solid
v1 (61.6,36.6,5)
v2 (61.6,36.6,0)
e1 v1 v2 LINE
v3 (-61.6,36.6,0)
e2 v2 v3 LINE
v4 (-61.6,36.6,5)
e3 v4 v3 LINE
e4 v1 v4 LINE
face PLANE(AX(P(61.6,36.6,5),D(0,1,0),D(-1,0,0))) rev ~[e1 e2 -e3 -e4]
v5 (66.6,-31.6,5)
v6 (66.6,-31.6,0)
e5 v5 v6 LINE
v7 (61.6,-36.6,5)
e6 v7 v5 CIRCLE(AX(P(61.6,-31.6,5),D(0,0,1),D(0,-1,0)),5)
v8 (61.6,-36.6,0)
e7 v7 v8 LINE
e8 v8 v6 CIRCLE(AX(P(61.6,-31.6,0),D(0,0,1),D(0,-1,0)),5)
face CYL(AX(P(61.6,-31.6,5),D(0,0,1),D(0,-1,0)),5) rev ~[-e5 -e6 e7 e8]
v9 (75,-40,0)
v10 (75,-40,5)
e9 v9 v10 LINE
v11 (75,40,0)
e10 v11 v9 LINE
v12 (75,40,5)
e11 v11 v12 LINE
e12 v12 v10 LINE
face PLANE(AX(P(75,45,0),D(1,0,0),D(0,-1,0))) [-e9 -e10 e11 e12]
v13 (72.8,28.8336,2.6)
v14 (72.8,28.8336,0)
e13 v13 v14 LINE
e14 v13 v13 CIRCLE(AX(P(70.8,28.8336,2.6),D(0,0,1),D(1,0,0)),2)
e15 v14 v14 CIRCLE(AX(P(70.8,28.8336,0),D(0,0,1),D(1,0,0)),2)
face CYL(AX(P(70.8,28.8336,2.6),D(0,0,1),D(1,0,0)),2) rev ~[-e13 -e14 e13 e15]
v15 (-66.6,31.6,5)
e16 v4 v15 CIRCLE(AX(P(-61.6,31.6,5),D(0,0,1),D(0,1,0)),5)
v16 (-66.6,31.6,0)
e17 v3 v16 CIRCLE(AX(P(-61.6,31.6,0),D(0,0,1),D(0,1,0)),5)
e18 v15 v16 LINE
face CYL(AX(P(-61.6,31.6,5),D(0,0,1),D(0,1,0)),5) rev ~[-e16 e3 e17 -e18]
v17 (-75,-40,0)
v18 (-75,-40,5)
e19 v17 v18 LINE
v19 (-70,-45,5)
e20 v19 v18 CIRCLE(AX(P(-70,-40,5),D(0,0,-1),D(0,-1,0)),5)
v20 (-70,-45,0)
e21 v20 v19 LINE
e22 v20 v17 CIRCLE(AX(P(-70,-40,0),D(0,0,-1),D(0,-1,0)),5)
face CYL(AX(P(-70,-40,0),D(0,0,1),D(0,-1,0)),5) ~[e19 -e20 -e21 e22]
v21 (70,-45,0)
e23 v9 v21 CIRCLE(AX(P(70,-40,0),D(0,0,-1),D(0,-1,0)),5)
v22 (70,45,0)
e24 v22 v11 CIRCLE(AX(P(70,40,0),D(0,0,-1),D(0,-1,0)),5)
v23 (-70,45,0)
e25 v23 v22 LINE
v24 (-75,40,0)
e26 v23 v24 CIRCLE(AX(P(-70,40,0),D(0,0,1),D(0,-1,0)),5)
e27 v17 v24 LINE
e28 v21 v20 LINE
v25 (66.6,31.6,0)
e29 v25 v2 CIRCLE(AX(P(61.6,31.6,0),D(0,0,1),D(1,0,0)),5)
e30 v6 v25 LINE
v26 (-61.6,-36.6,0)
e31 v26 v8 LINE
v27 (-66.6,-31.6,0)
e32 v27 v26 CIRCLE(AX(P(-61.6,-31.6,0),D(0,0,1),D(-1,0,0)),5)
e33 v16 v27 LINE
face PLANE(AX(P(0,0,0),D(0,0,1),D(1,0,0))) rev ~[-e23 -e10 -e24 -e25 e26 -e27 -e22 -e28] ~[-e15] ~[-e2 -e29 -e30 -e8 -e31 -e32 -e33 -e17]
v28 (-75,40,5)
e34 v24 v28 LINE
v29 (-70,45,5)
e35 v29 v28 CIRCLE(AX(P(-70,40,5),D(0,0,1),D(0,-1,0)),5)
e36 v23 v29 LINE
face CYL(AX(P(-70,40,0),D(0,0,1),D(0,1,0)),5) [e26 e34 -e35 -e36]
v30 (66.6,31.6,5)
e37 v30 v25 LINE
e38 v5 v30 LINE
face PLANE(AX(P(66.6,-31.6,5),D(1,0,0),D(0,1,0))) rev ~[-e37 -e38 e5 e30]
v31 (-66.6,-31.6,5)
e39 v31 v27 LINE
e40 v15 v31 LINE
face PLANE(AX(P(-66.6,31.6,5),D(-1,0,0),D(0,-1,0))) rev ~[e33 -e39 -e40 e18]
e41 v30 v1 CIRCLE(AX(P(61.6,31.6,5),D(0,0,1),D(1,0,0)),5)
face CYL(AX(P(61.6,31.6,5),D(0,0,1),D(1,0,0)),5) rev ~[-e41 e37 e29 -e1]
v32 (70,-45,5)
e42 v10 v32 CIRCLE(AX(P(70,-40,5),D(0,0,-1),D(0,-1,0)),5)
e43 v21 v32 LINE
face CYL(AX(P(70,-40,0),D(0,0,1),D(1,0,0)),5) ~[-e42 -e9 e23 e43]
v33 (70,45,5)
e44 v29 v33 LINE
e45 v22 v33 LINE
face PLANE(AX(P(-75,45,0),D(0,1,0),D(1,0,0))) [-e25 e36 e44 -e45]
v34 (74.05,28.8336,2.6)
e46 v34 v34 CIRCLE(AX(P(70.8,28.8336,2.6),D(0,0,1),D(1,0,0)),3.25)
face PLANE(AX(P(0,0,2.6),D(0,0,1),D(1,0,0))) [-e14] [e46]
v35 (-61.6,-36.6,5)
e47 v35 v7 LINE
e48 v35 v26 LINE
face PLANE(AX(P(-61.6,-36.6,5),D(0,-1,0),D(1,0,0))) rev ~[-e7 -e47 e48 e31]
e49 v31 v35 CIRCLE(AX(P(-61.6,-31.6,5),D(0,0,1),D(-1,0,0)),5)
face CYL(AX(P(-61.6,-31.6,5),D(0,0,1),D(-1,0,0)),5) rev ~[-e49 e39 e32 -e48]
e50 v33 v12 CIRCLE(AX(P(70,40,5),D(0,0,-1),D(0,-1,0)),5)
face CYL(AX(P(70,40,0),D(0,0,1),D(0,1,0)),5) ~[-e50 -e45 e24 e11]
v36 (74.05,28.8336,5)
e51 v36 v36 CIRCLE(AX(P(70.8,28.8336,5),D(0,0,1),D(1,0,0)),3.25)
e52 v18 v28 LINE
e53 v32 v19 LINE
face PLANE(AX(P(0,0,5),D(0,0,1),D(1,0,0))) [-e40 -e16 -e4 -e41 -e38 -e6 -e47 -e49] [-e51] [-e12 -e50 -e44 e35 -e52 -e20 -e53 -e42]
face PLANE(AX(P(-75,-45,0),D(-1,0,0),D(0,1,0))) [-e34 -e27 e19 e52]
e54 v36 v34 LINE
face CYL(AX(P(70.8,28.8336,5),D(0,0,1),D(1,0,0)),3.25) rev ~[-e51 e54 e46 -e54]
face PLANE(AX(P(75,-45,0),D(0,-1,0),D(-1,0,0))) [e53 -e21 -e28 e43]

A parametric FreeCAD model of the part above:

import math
import FreeCAD as App
import Part
import Sketcher
from FreeCAD import Vector


def edges_at(feature, points):
    """Names of the edges that pass closest to the given points."""
    edges = feature.Shape.Edges
    near = lambda p: min(range(len(edges)), key=lambda i: edges[i].distToShape(Part.Vertex(*p))[0])
    return sorted({f"Edge{near(p) + 1}" for p in points})


def add_polygon(sketch, points):
    """Adds a closed chain of lines whose ends are joined by coincident constraints."""
    first, n = sketch.GeometryCount, len(points)
    for a, b in zip(points, points[1:] + points[:1]):
        sketch.addGeometry(Part.LineSegment(App.Vector(*a, 0), App.Vector(*b, 0)), False)
    for i in range(n):
        sketch.addConstraint(Sketcher.Constraint("Coincident", first + i, 2, first + (i + 1) % n, 1))

doc = App.newDocument("Part")
body = doc.addObject("PartDesign::Body", "Body")

sketch1 = body.newObject("Sketcher::SketchObject", "Sketch")
sketch1.AttachmentSupport = (doc.getObject("XY_Plane"), [""])
sketch1.MapMode = "FlatFace"
add_polygon(sketch1, [(75, 45), (-75, 45), (-75, -45), (75, -45)])
sketch1.addConstraint(Sketcher.Constraint("Horizontal", 0))
sketch1.addConstraint(Sketcher.Constraint("Vertical", 1))
sketch1.addConstraint(Sketcher.Constraint("Horizontal", 2))
sketch1.addConstraint(Sketcher.Constraint("Vertical", 3))
sketch1.addConstraint(Sketcher.Constraint("Symmetric", 0, 2, 2, 2, -1, 1))
sketch1.addConstraint(Sketcher.Constraint("DistanceX", 0, 2, 0, 1, 150.0))
sketch1.addConstraint(Sketcher.Constraint("DistanceY", 1, 2, 1, 1, 90.0))
pad1 = body.newObject("PartDesign::Pad", "Pad")
pad1.Profile = sketch1
pad1.Length = 5
doc.recompute()

fillet = body.newObject("PartDesign::Fillet", "Fillet")
fillet.Base = (pad1, edges_at(pad1, [
    (75, 45, 2.5),
    (75, -45, 2.5),
    (-75, -45, 2.5),
    (-75, 45, 2.5),
]))
fillet.Radius = 5

sketch2 = body.newObject("Sketcher::SketchObject", "Sketch001")
sketch2.AttachmentSupport = (doc.getObject("XY_Plane"), [""])
sketch2.MapMode = "FlatFace"
sketch2.AttachmentOffset = App.Placement(Vector(0, 0, 5), App.Rotation())
sketch2.addGeometry(Part.ArcOfCircle(Part.Circle(Vector(-61.6, -31.6, 0), Vector(0, 0, 1), 5), math.radians(180), math.radians(270)), False)
sketch2.addGeometry(Part.LineSegment(Vector(-61.6, -36.6, 0), Vector(61.6, -36.6, 0)), False)
sketch2.addGeometry(Part.ArcOfCircle(Part.Circle(Vector(61.6, -31.6, 0), Vector(0, 0, 1), 5), math.radians(-90), math.radians(0)), False)
sketch2.addGeometry(Part.LineSegment(Vector(66.6, -31.6, 0), Vector(66.6, 31.6, 0)), False)
sketch2.addGeometry(Part.ArcOfCircle(Part.Circle(Vector(61.6, 31.6, 0), Vector(0, 0, 1), 5), math.radians(0), math.radians(90)), False)
sketch2.addGeometry(Part.LineSegment(Vector(61.6, 36.6, 0), Vector(-61.6, 36.6, 0)), False)
sketch2.addGeometry(Part.ArcOfCircle(Part.Circle(Vector(-61.6, 31.6, 0), Vector(0, 0, 1), 5), math.radians(90), math.radians(180)), False)
sketch2.addGeometry(Part.LineSegment(Vector(-66.6, 31.6, 0), Vector(-66.6, -31.6, 0)), False)
sketch2.addConstraint(Sketcher.Constraint("Tangent", 0, 2, 1, 1))
sketch2.addConstraint(Sketcher.Constraint("Tangent", 1, 2, 2, 1))
sketch2.addConstraint(Sketcher.Constraint("Tangent", 2, 2, 3, 1))
sketch2.addConstraint(Sketcher.Constraint("Tangent", 3, 2, 4, 1))
sketch2.addConstraint(Sketcher.Constraint("Tangent", 4, 2, 5, 1))
sketch2.addConstraint(Sketcher.Constraint("Tangent", 5, 2, 6, 1))
sketch2.addConstraint(Sketcher.Constraint("Tangent", 6, 2, 7, 1))
sketch2.addConstraint(Sketcher.Constraint("Tangent", 7, 2, 0, 1))
sketch2.addConstraint(Sketcher.Constraint("Horizontal", 1))
sketch2.addConstraint(Sketcher.Constraint("Vertical", 3))
sketch2.addConstraint(Sketcher.Constraint("Horizontal", 5))
sketch2.addConstraint(Sketcher.Constraint("Vertical", 7))
sketch2.addConstraint(Sketcher.Constraint("Equal", 0, 2))
sketch2.addConstraint(Sketcher.Constraint("Equal", 2, 4))
sketch2.addConstraint(Sketcher.Constraint("Equal", 4, 6))
sketch2.addConstraint(Sketcher.Constraint("Symmetric", 0, 3, 4, 3, -1, 1))
sketch2.addConstraint(Sketcher.Constraint("Radius", 0, 5.0))
sketch2.addConstraint(Sketcher.Constraint("DistanceY", 1, 2, 4, 2, 73.2))
sketch2.addConstraint(Sketcher.Constraint("DistanceX", 1, 1, 1, 2, 123.2))
pocket1 = body.newObject("PartDesign::Pocket", "Pocket")
pocket1.Profile = sketch2
pocket1.Length = 5

sketch3 = body.newObject("Sketcher::SketchObject", "Sketch002")
sketch3.AttachmentSupport = (doc.getObject("XY_Plane"), [""])
sketch3.MapMode = "FlatFace"
sketch3.AttachmentOffset = App.Placement(Vector(0, 0, 5), App.Rotation())
sketch3.addGeometry(Part.Circle(Vector(70.8, 28.8, 0), Vector(0, 0, 1), 3.2), False)
sketch3.addConstraint(Sketcher.Constraint("Diameter", 0, 6.5))
sketch3.addConstraint(Sketcher.Constraint("DistanceX", -1, 1, 0, 3, 70.8))
sketch3.addConstraint(Sketcher.Constraint("DistanceY", -1, 1, 0, 3, 28.8336))
pocket2 = body.newObject("PartDesign::Pocket", "Pocket001")
pocket2.Profile = sketch3
pocket2.Length = 2.4

sketch4 = body.newObject("Sketcher::SketchObject", "Sketch003")
sketch4.AttachmentSupport = (doc.getObject("XY_Plane"), [""])
sketch4.MapMode = "FlatFace"
sketch4.AttachmentOffset = App.Placement(Vector(0, 0, 2.6), App.Rotation())
sketch4.addGeometry(Part.Circle(Vector(70.8, 28.8, 0), Vector(0, 0, 1), 2), False)
sketch4.addConstraint(Sketcher.Constraint("Diameter", 0, 4.0))
sketch4.addConstraint(Sketcher.Constraint("DistanceX", -1, 1, 0, 3, 70.8))
sketch4.addConstraint(Sketcher.Constraint("DistanceY", -1, 1, 0, 3, 28.8336))
pocket3 = body.newObject("PartDesign::Pocket", "Pocket002")
pocket3.Profile = sketch4
pocket3.Length = 15

doc.recompute()
